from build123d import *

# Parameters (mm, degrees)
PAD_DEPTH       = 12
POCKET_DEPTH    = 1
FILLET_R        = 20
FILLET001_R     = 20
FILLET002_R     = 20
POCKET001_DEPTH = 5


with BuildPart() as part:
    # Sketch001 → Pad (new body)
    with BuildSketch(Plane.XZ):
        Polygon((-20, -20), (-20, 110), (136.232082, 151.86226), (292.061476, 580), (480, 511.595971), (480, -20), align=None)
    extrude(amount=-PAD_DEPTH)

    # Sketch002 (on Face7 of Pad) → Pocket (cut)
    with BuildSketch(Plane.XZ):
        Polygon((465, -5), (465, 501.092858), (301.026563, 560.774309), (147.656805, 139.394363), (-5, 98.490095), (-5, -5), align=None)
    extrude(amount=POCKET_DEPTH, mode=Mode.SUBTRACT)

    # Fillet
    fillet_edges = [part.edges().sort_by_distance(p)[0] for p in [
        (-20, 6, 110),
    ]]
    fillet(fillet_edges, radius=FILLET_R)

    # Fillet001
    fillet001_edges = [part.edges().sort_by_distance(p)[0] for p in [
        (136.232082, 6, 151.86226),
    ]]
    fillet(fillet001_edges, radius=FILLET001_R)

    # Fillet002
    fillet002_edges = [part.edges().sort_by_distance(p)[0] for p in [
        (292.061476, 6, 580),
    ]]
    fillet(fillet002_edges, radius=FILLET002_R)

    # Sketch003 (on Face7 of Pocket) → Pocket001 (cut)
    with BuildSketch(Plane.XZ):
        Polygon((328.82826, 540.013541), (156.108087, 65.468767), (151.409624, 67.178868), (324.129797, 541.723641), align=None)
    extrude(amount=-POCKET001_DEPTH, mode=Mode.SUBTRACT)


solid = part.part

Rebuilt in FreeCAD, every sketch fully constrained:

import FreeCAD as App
import Part
import Sketcher

V = App.Vector
Q = App.Units.Quantity


def edges_at(feature, points):
    """Names of the edges that pass closest to the given points."""
    edges = feature.Shape.Edges
    near = lambda p: min(range(len(edges)), key=lambda i: edges[i].distToShape(Part.Vertex(*p))[0])
    return sorted({f"Edge{near(p) + 1}" for p in points})

doc = App.newDocument("Part")
body = doc.addObject("PartDesign::Body", "Body")

# Sketch on XZ plane
sketch1 = body.newObject("Sketcher::SketchObject", "Sketch")
sketch1.AttachmentSupport = (doc.getObject("XZ_Plane"), [""])
sketch1.MapMode = "FlatFace"
sketch1.addGeometry(Part.LineSegment(V(-20, 110, 0), V(-20, -20, 0)), False)
sketch1.addGeometry(Part.LineSegment(V(-20, -20, 0), V(480, -20, 0)), False)
sketch1.addGeometry(Part.LineSegment(V(480, -20, 0), V(480, 512, 0)), False)
sketch1.addGeometry(Part.LineSegment(V(480, 512, 0), V(292, 580, 0)), False)
sketch1.addGeometry(Part.LineSegment(V(292, 580, 0), V(136, 152, 0)), False)
sketch1.addGeometry(Part.LineSegment(V(136, 152, 0), V(-20, 110, 0)), False)
sketch1.addConstraint(Sketcher.Constraint("Coincident", 0, 2, 1, 1))
sketch1.addConstraint(Sketcher.Constraint("Coincident", 1, 2, 2, 1))
sketch1.addConstraint(Sketcher.Constraint("Coincident", 2, 2, 3, 1))
sketch1.addConstraint(Sketcher.Constraint("Coincident", 3, 2, 4, 1))
sketch1.addConstraint(Sketcher.Constraint("Coincident", 4, 2, 5, 1))
sketch1.addConstraint(Sketcher.Constraint("Coincident", 5, 2, 0, 1))
sketch1.addConstraint(Sketcher.Constraint("Vertical", 0))
sketch1.addConstraint(Sketcher.Constraint("Horizontal", 1))
sketch1.addConstraint(Sketcher.Constraint("Vertical", 2))
sketch1.addConstraint(Sketcher.Constraint("Perpendicular", 3, 4))
sketch1.addConstraint(Sketcher.Constraint("DistanceX", 1, 1, 1, 2, Q("500 mm")))
sketch1.addConstraint(Sketcher.Constraint("DistanceY", 0, 2, 0, 1, Q("130 mm")))
sketch1.addConstraint(Sketcher.Constraint("Angle", 3, Q("160 deg")))
sketch1.addConstraint(Sketcher.Constraint("Angle", 5, Q("-165 deg")))
sketch1.addConstraint(Sketcher.Constraint("Distance", 3, Q("200 mm")))
sketch1.addConstraint(Sketcher.Constraint("DistanceX", 0, 2, -1, 1, Q("20 mm")))
sketch1.addConstraint(Sketcher.Constraint("DistanceY", 0, 2, -1, 1, Q("20 mm")))
sketch1.addConstraint(Sketcher.Constraint("DistanceY", -1, 1, 3, 2, Q("580 mm")))
pad1 = body.newObject("PartDesign::Pad", "Pad")
pad1.Profile = sketch1
pad1.Length = 12
pad1.Reversed = True

# Sketch on XZ plane
sketch2 = body.newObject("Sketcher::SketchObject", "Sketch001")
sketch2.AttachmentSupport = (doc.getObject("XZ_Plane"), [""])
sketch2.MapMode = "FlatFace"
sketch2.addGeometry(Part.LineSegment(V(465, -5, 0), V(465, 501, 0)), False)
sketch2.addGeometry(Part.LineSegment(V(465, 501, 0), V(301, 561, 0)), False)
sketch2.addGeometry(Part.LineSegment(V(301, 561, 0), V(148, 139, 0)), False)
sketch2.addGeometry(Part.LineSegment(V(148, 139, 0), V(-5, 98, 0)), False)
sketch2.addGeometry(Part.LineSegment(V(-5, 98, 0), V(-5, -5, 0)), False)
sketch2.addGeometry(Part.LineSegment(V(-5, -5, 0), V(465, -5, 0)), False)
sketch2.addConstraint(Sketcher.Constraint("Coincident", 0, 2, 1, 1))
sketch2.addConstraint(Sketcher.Constraint("Coincident", 1, 2, 2, 1))
sketch2.addConstraint(Sketcher.Constraint("Coincident", 2, 2, 3, 1))
sketch2.addConstraint(Sketcher.Constraint("Coincident", 3, 2, 4, 1))
sketch2.addConstraint(Sketcher.Constraint("Coincident", 4, 2, 5, 1))
sketch2.addConstraint(Sketcher.Constraint("Coincident", 5, 2, 0, 1))
sketch2.addConstraint(Sketcher.Constraint("Vertical", 0))
sketch2.addConstraint(Sketcher.Constraint("Vertical", 4))
sketch2.addConstraint(Sketcher.Constraint("Horizontal", 5))
sketch2.addConstraint(Sketcher.Constraint("Perpendicular", 1, 2))
sketch2.addConstraint(Sketcher.Constraint("DistanceX", 5, 1, 5, 2, Q("470 mm")))
sketch2.addConstraint(Sketcher.Constraint("Angle", 1, Q("160 deg")))
sketch2.addConstraint(Sketcher.Constraint("Angle", 3, Q("-165 deg")))
sketch2.addConstraint(Sketcher.Constraint("DistanceX", -1, 1, 0, 2, Q("465 mm")))
sketch2.addConstraint(Sketcher.Constraint("DistanceY", 4, 2, -1, 1, Q("5 mm")))
sketch2.addConstraint(Sketcher.Constraint("DistanceY", 0, 1, 0, 2, Q("506.092858 mm")))
sketch2.addConstraint(Sketcher.Constraint("DistanceY", 4, 2, 4, 1, Q("103.490095 mm")))
sketch2.addConstraint(Sketcher.Constraint("DistanceY", -1, 1, 1, 2, Q("560.774309 mm")))
pocket1 = body.newObject("PartDesign::Pocket", "Pocket")
pocket1.Profile = sketch2
pocket1.Length = 1
pocket1.Reversed = True
doc.recompute()

fillet = body.newObject("PartDesign::Fillet", "Fillet")
fillet.Base = (pocket1, edges_at(pocket1, [(-20, 6, 110)]))
fillet.Radius = 20
doc.recompute()

fillet2 = body.newObject("PartDesign::Fillet", "Fillet001")
fillet2.Base = (fillet, edges_at(fillet, [(136.232, 6, 151.862)]))
fillet2.Radius = 20
doc.recompute()

fillet3 = body.newObject("PartDesign::Fillet", "Fillet002")
fillet3.Base = (fillet2, edges_at(fillet2, [(292.061, 6, 580)]))
fillet3.Radius = 20

# Sketch on XZ plane
sketch3 = body.newObject("Sketcher::SketchObject", "Sketch002")
sketch3.AttachmentSupport = (doc.getObject("XZ_Plane"), [""])
sketch3.MapMode = "FlatFace"
sketch3.addGeometry(Part.LineSegment(V(156.1, 65.5, 0), V(328.8, 540, 0)), False)
sketch3.addGeometry(Part.LineSegment(V(328.8, 540, 0), V(324.1, 541.7, 0)), False)
sketch3.addGeometry(Part.LineSegment(V(324.1, 541.7, 0), V(151.4, 67.2, 0)), False)
sketch3.addGeometry(Part.LineSegment(V(151.4, 67.2, 0), V(156.1, 65.5, 0)), False)
sketch3.addConstraint(Sketcher.Constraint("Coincident", 0, 2, 1, 1))
sketch3.addConstraint(Sketcher.Constraint("Coincident", 1, 2, 2, 1))
sketch3.addConstraint(Sketcher.Constraint("Coincident", 2, 2, 3, 1))
sketch3.addConstraint(Sketcher.Constraint("Coincident", 3, 2, 0, 1))
sketch3.addConstraint(Sketcher.Constraint("Perpendicular", 0, 1))
sketch3.addConstraint(Sketcher.Constraint("Perpendicular", 1, 2))
sketch3.addConstraint(Sketcher.Constraint("Perpendicular", 2, 3))
sketch3.addConstraint(Sketcher.Constraint("Angle", 0, Q("70 deg")))
sketch3.addConstraint(Sketcher.Constraint("Distance", 0, Q("505.000001 mm")))
sketch3.addConstraint(Sketcher.Constraint("Distance", 1, Q("5 mm")))
sketch3.addConstraint(Sketcher.Constraint("DistanceX", -1, 1, 0, 2, Q("328.82826 mm")))
sketch3.addConstraint(Sketcher.Constraint("DistanceY", -1, 1, 0, 2, Q("540.013541 mm")))
pocket2 = body.newObject("PartDesign::Pocket", "Pocket001")
pocket2.Profile = sketch3
pocket2.Length = 5

doc.recompute()
